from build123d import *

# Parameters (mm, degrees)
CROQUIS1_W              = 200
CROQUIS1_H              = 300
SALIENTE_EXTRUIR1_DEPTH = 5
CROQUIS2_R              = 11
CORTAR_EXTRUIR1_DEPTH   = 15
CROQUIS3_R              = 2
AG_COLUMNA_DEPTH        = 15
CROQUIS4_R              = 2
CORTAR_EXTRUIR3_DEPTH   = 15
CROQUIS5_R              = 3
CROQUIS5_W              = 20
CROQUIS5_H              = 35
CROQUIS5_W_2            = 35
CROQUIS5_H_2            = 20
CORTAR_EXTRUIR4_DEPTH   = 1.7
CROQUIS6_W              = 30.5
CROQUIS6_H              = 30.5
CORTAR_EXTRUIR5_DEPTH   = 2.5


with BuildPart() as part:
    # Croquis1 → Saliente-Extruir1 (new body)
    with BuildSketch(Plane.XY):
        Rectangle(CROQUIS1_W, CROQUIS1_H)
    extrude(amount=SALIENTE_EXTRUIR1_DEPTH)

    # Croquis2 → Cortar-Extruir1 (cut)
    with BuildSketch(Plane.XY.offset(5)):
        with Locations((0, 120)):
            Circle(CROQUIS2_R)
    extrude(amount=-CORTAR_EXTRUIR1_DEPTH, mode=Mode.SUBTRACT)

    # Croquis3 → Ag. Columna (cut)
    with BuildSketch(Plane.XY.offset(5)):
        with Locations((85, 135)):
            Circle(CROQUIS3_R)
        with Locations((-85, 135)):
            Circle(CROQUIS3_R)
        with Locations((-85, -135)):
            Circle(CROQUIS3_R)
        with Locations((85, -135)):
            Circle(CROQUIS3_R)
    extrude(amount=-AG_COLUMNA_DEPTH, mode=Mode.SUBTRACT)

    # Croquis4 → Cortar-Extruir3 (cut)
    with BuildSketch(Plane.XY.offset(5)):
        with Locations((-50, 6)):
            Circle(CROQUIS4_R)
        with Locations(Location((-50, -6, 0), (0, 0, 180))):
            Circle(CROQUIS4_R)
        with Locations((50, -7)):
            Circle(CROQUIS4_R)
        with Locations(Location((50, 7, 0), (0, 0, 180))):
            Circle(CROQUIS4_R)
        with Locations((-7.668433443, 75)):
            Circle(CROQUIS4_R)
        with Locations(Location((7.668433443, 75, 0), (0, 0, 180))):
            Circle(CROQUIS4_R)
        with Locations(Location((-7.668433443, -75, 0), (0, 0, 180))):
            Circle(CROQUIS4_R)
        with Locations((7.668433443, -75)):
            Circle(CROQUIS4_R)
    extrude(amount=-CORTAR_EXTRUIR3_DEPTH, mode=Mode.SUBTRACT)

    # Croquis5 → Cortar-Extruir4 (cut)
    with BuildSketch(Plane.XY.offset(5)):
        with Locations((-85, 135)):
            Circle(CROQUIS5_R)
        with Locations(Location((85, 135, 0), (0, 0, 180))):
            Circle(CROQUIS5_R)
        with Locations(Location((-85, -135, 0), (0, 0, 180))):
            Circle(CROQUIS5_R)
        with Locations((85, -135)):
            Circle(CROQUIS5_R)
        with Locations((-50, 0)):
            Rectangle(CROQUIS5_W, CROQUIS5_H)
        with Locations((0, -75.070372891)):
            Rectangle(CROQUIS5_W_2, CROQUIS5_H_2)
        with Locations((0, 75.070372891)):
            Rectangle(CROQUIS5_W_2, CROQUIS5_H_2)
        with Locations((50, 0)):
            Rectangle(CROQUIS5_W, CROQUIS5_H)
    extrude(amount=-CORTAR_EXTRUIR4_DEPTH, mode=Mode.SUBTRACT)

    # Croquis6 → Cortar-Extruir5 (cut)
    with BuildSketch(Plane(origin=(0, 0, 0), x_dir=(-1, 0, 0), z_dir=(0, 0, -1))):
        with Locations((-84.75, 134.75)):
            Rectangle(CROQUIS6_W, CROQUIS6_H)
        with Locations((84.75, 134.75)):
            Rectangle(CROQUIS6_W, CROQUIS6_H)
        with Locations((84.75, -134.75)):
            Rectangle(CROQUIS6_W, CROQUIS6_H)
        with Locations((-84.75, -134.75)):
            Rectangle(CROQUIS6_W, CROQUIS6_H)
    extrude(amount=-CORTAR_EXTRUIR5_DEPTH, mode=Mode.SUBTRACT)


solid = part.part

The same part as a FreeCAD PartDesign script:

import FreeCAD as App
import Part
import Sketcher

V = App.Vector


def add_polygon(sketch, points):
    """Adds a closed chain of lines whose ends are joined by coincident constraints."""
    first, n = sketch.GeometryCount, len(points)
    for a, b in zip(points, points[1:] + points[:1]):
        sketch.addGeometry(Part.LineSegment(App.Vector(*a, 0), App.Vector(*b, 0)), False)
    for i in range(n):
        sketch.addConstraint(Sketcher.Constraint("Coincident", first + i, 2, first + (i + 1) % n, 1))

doc = App.newDocument("Part")
body = doc.addObject("PartDesign::Body", "Body")

# Sketch on XY plane
sketch1 = body.newObject("Sketcher::SketchObject", "Sketch")
sketch1.AttachmentSupport = (doc.getObject("XY_Plane"), [""])
sketch1.MapMode = "FlatFace"
add_polygon(sketch1, [(-100, 150), (-100, -150), (100, -150), (100, 150)])  # lines 0-3
sketch1.addConstraint(Sketcher.Constraint("Vertical", 0))
sketch1.addConstraint(Sketcher.Constraint("Horizontal", 1))
sketch1.addConstraint(Sketcher.Constraint("Vertical", 2))
sketch1.addConstraint(Sketcher.Constraint("Horizontal", 3))
sketch1.addConstraint(Sketcher.Constraint("Symmetric", 0, 2, 2, 2, -1, 1))
sketch1.addConstraint(Sketcher.Constraint("DistanceX", 1, 1, 1, 2, 200.0))
sketch1.addConstraint(Sketcher.Constraint("DistanceY", 0, 2, 0, 1, 300.0))
pad1 = body.newObject("PartDesign::Pad", "Pad")
pad1.Profile = sketch1
pad1.Length = 5

# Sketch on XY plane
sketch2 = body.newObject("Sketcher::SketchObject", "Sketch001")
sketch2.AttachmentSupport = (doc.getObject("XY_Plane"), [""])
sketch2.MapMode = "FlatFace"
sketch2.AttachmentOffset = App.Placement(V(0, 0, 5), App.Rotation())
sketch2.addGeometry(Part.Circle(V(0, 120, 0), V(0, 0, 1), 11), False)
sketch2.addConstraint(Sketcher.Constraint("PointOnObject", 0, 3, -2))
sketch2.addConstraint(Sketcher.Constraint("Diameter", 0, 22.0))
sketch2.addConstraint(Sketcher.Constraint("DistanceY", -1, 1, 0, 3, 120.0))
pocket1 = body.newObject("PartDesign::Pocket", "Pocket")
pocket1.Profile = sketch2
pocket1.Length = 15

# Sketch on XY plane
sketch3 = body.newObject("Sketcher::SketchObject", "Sketch002")
sketch3.AttachmentSupport = (doc.getObject("XY_Plane"), [""])
sketch3.MapMode = "FlatFace"
sketch3.AttachmentOffset = App.Placement(V(0, 0, 5), App.Rotation())
sketch3.addGeometry(Part.Circle(V(85, 135, 0), V(0, 0, 1), 2), False)
sketch3.addGeometry(Part.Circle(V(-85, 135, 0), V(0, 0, 1), 2), False)
sketch3.addGeometry(Part.Circle(V(-85, -135, 0), V(0, 0, 1), 2), False)
sketch3.addGeometry(Part.Circle(V(85, -135, 0), V(0, 0, 1), 2), False)
sketch3.addConstraint(Sketcher.Constraint("Equal", 0, 1))
sketch3.addConstraint(Sketcher.Constraint("Equal", 1, 2))
sketch3.addConstraint(Sketcher.Constraint("Equal", 2, 3))
sketch3.addConstraint(Sketcher.Constraint("Symmetric", 0, 3, 2, 3, -1, 1))
sketch3.addConstraint(Sketcher.Constraint("Symmetric", 1, 3, 3, 3, -1, 1))
sketch3.addConstraint(Sketcher.Constraint("Symmetric", 0, 3, 1, 3, -2))
sketch3.addConstraint(Sketcher.Constraint("Diameter", 0, 4.0))
sketch3.addConstraint(Sketcher.Constraint("DistanceX", -1, 1, 0, 3, 85.0))
sketch3.addConstraint(Sketcher.Constraint("DistanceY", -1, 1, 0, 3, 135.0))
pocket2 = body.newObject("PartDesign::Pocket", "Pocket001")
pocket2.Profile = sketch3
pocket2.Length = 15

# Sketch on XY plane
sketch4 = body.newObject("Sketcher::SketchObject", "Sketch003")
sketch4.AttachmentSupport = (doc.getObject("XY_Plane"), [""])
sketch4.MapMode = "FlatFace"
sketch4.AttachmentOffset = App.Placement(V(0, 0, 5), App.Rotation())
sketch4.addGeometry(Part.Circle(V(-50, 6, 0), V(0, 0, 1), 2), False)
sketch4.addGeometry(Part.Circle(V(-50, -6, 0), V(0, 0, 1), 2), False)
sketch4.addGeometry(Part.Circle(V(50, -7, 0), V(0, 0, 1), 2), False)
sketch4.addGeometry(Part.Circle(V(50, 7, 0), V(0, 0, 1), 2), False)
sketch4.addGeometry(Part.Circle(V(-7.668433, 75, 0), V(0, 0, 1), 2), False)
sketch4.addGeometry(Part.Circle(V(7.668433, 75, 0), V(0, 0, 1), 2), False)
sketch4.addGeometry(Part.Circle(V(-7.668433, -75, 0), V(0, 0, 1), 2), False)
sketch4.addGeometry(Part.Circle(V(7.668433, -75, 0), V(0, 0, 1), 2), False)
sketch4.addConstraint(Sketcher.Constraint("Equal", 0, 1))
sketch4.addConstraint(Sketcher.Constraint("Equal", 1, 2))
sketch4.addConstraint(Sketcher.Constraint("Equal", 2, 3))
sketch4.addConstraint(Sketcher.Constraint("Equal", 3, 4))
sketch4.addConstraint(Sketcher.Constraint("Equal", 4, 5))
sketch4.addConstraint(Sketcher.Constraint("Equal", 5, 6))
sketch4.addConstraint(Sketcher.Constraint("Equal", 6, 7))
sketch4.addConstraint(Sketcher.Constraint("Symmetric", 5, 3, 6, 3, -1, 1))
sketch4.addConstraint(Sketcher.Constraint("Symmetric", 4, 3, 7, 3, -1, 1))
sketch4.addConstraint(Sketcher.Constraint("Symmetric", 4, 3, 5, 3, -2))
sketch4.addConstraint(Sketcher.Constraint("Symmetric", 0, 3, 1, 3, -1))
sketch4.addConstraint(Sketcher.Constraint("Symmetric", 2, 3, 3, 3, -1))
sketch4.addConstraint(Sketcher.Constraint("Diameter", 0, 4.0))
sketch4.addConstraint(Sketcher.Constraint("DistanceX", 0, 3, -1, 1, 50.0))
sketch4.addConstraint(Sketcher.Constraint("DistanceY", -1, 1, 0, 3, 6.0))
sketch4.addConstraint(Sketcher.Constraint("DistanceX", -1, 1, 2, 3, 50.0))
sketch4.addConstraint(Sketcher.Constraint("DistanceY", 2, 3, -1, 1, 7.0))
sketch4.addConstraint(Sketcher.Constraint("DistanceY", -1, 1, 4, 3, 75.0))
sketch4.addConstraint(Sketcher.Constraint("DistanceX", 4, 3, -1, 1, 7.668433))
pocket3 = body.newObject("PartDesign::Pocket", "Pocket002")
pocket3.Profile = sketch4
pocket3.Length = 15

# Sketch on XY plane
sketch5 = body.newObject("Sketcher::SketchObject", "Sketch004")
sketch5.AttachmentSupport = (doc.getObject("XY_Plane"), [""])
sketch5.MapMode = "FlatFace"
sketch5.AttachmentOffset = App.Placement(V(0, 0, 5), App.Rotation())
sketch5.addGeometry(Part.Circle(V(-85, 135, 0), V(0, 0, 1), 3), False)  # 0
sketch5.addGeometry(Part.Circle(V(85, 135, 0), V(0, 0, 1), 3), False)  # 1
sketch5.addGeometry(Part.Circle(V(-85, -135, 0), V(0, 0, 1), 3), False)  # 2
sketch5.addGeometry(Part.Circle(V(85, -135, 0), V(0, 0, 1), 3), False)  # 3
add_polygon(sketch5, [(-60, 17.5), (-60, -17.5), (-40, -17.5), (-40, 17.5)])  # lines 4-7
add_polygon(sketch5, [(-17.5, -65.070373), (-17.5, -85.070373), (17.5, -85.070373), (17.5, -65.070373)])  # lines 8-11
add_polygon(sketch5, [(-17.5, 85.070373), (-17.5, 65.070373), (17.5, 65.070373), (17.5, 85.070373)])  # lines 12-15
add_polygon(sketch5, [(40, 17.5), (40, -17.5), (60, -17.5), (60, 17.5)])  # lines 16-19
sketch5.addConstraint(Sketcher.Constraint("Vertical", 4))
sketch5.addConstraint(Sketcher.Constraint("Horizontal", 5))
sketch5.addConstraint(Sketcher.Constraint("Vertical", 6))
sketch5.addConstraint(Sketcher.Constraint("Horizontal", 7))
sketch5.addConstraint(Sketcher.Constraint("Vertical", 8))
sketch5.addConstraint(Sketcher.Constraint("Horizontal", 9))
sketch5.addConstraint(Sketcher.Constraint("Vertical", 10))
sketch5.addConstraint(Sketcher.Constraint("Horizontal", 11))
sketch5.addConstraint(Sketcher.Constraint("Vertical", 12))
sketch5.addConstraint(Sketcher.Constraint("Horizontal", 13))
sketch5.addConstraint(Sketcher.Constraint("Vertical", 14))
sketch5.addConstraint(Sketcher.Constraint("Horizontal", 15))
sketch5.addConstraint(Sketcher.Constraint("Vertical", 16))
sketch5.addConstraint(Sketcher.Constraint("Horizontal", 17))
sketch5.addConstraint(Sketcher.Constraint("Vertical", 18))
sketch5.addConstraint(Sketcher.Constraint("Horizontal", 19))
sketch5.addConstraint(Sketcher.Constraint("Equal", 0, 1))
sketch5.addConstraint(Sketcher.Constraint("Equal", 1, 2))
sketch5.addConstraint(Sketcher.Constraint("Equal", 2, 3))
sketch5.addConstraint(Sketcher.Constraint("Symmetric", 1, 3, 2, 3, -1, 1))
sketch5.addConstraint(Sketcher.Constraint("Symmetric", 0, 3, 3, 3, -1, 1))
sketch5.addConstraint(Sketcher.Constraint("Symmetric", 10, 2, 12, 2, -1, 1))
sketch5.addConstraint(Sketcher.Constraint("Symmetric", 8, 2, 14, 2, -1, 1))
sketch5.addConstraint(Sketcher.Constraint("Symmetric", 6, 2, 16, 2, -1, 1))
sketch5.addConstraint(Sketcher.Constraint("Symmetric", 4, 2, 18, 2, -1, 1))
sketch5.addConstraint(Sketcher.Constraint("Symmetric", 0, 3, 1, 3, -2))
sketch5.addConstraint(Sketcher.Constraint("Horizontal", 5, 2, 16, 2))
sketch5.addConstraint(Sketcher.Constraint("Vertical", 11, 2, 12, 2))
sketch5.addConstraint(Sketcher.Constraint("Equal", 15, 4))
sketch5.addConstraint(Sketcher.Constraint("Equal", 19, 8))
sketch5.addConstraint(Sketcher.Constraint("Diameter", 0, 6.0))
sketch5.addConstraint(Sketcher.Constraint("DistanceX", 5, 1, 5, 2, 20.0))
sketch5.addConstraint(Sketcher.Constraint("DistanceX", 9, 1, 9, 2, 35.0))
sketch5.addConstraint(Sketcher.Constraint("DistanceX", 0, 3, -1, 1, 85.0))
sketch5.addConstraint(Sketcher.Constraint("DistanceY", -1, 1, 0, 3, 135.0))
sketch5.addConstraint(Sketcher.Constraint("DistanceX", 4, 2, -1, 1, 60.0))
sketch5.addConstraint(Sketcher.Constraint("DistanceY", 8, 2, -1, 1, 85.070373))
pocket4 = body.newObject("PartDesign::Pocket", "Pocket003")
pocket4.Profile = sketch5
pocket4.Length = 1.7

# Sketch on XY plane
sketch6 = body.newObject("Sketcher::SketchObject", "Sketch005")
sketch6.AttachmentSupport = (doc.getObject("XY_Plane"), [""])
sketch6.MapMode = "FlatFace"
add_polygon(sketch6, [(100, 150), (100, 119.5), (69.5, 119.5), (69.5, 150)])  # lines 0-3
add_polygon(sketch6, [(-69.5, 150), (-69.5, 119.5), (-100, 119.5), (-100, 150)])  # lines 4-7
add_polygon(sketch6, [(-69.5, -119.5), (-69.5, -150), (-100, -150), (-100, -119.5)])  # lines 8-11
add_polygon(sketch6, [(100, -119.5), (100, -150), (69.5, -150), (69.5, -119.5)])  # lines 12-15
sketch6.addConstraint(Sketcher.Constraint("Vertical", 0))
sketch6.addConstraint(Sketcher.Constraint("Horizontal", 1))
sketch6.addConstraint(Sketcher.Constraint("Vertical", 2))
sketch6.addConstraint(Sketcher.Constraint("Horizontal", 3))
sketch6.addConstraint(Sketcher.Constraint("Vertical", 4))
sketch6.addConstraint(Sketcher.Constraint("Horizontal", 5))
sketch6.addConstraint(Sketcher.Constraint("Vertical", 6))
sketch6.addConstraint(Sketcher.Constraint("Horizontal", 7))
sketch6.addConstraint(Sketcher.Constraint("Vertical", 8))
sketch6.addConstraint(Sketcher.Constraint("Horizontal", 9))
sketch6.addConstraint(Sketcher.Constraint("Vertical", 10))
sketch6.addConstraint(Sketcher.Constraint("Horizontal", 11))
sketch6.addConstraint(Sketcher.Constraint("Vertical", 12))
sketch6.addConstraint(Sketcher.Constraint("Horizontal", 13))
sketch6.addConstraint(Sketcher.Constraint("Vertical", 14))
sketch6.addConstraint(Sketcher.Constraint("Horizontal", 15))
sketch6.addConstraint(Sketcher.Constraint("Symmetric", 2, 2, 8, 2, -1, 1))
sketch6.addConstraint(Sketcher.Constraint("Symmetric", 0, 2, 10, 2, -1, 1))
sketch6.addConstraint(Sketcher.Constraint("Symmetric", 6, 2, 12, 2, -1, 1))
sketch6.addConstraint(Sketcher.Constraint("Symmetric", 4, 2, 14, 2, -1, 1))
sketch6.addConstraint(Sketcher.Constraint("Symmetric", 1, 2, 4, 2, -2))
sketch6.addConstraint(Sketcher.Constraint("Symmetric", 3, 2, 6, 2, -2))
sketch6.addConstraint(Sketcher.Constraint("Equal", 15, 0))
sketch6.addConstraint(Sketcher.Constraint("DistanceX", 1, 2, 1, 1, 30.5))
sketch6.addConstraint(Sketcher.Constraint("DistanceX", -1, 1, 0, 2, 100.0))
sketch6.addConstraint(Sketcher.Constraint("DistanceY", -1, 1, 2, 2, 150.0))
pocket5 = body.newObject("PartDesign::Pocket", "Pocket004")
pocket5.Profile = sketch6
pocket5.Length = 2.5
pocket5.Reversed = True

doc.recompute()
